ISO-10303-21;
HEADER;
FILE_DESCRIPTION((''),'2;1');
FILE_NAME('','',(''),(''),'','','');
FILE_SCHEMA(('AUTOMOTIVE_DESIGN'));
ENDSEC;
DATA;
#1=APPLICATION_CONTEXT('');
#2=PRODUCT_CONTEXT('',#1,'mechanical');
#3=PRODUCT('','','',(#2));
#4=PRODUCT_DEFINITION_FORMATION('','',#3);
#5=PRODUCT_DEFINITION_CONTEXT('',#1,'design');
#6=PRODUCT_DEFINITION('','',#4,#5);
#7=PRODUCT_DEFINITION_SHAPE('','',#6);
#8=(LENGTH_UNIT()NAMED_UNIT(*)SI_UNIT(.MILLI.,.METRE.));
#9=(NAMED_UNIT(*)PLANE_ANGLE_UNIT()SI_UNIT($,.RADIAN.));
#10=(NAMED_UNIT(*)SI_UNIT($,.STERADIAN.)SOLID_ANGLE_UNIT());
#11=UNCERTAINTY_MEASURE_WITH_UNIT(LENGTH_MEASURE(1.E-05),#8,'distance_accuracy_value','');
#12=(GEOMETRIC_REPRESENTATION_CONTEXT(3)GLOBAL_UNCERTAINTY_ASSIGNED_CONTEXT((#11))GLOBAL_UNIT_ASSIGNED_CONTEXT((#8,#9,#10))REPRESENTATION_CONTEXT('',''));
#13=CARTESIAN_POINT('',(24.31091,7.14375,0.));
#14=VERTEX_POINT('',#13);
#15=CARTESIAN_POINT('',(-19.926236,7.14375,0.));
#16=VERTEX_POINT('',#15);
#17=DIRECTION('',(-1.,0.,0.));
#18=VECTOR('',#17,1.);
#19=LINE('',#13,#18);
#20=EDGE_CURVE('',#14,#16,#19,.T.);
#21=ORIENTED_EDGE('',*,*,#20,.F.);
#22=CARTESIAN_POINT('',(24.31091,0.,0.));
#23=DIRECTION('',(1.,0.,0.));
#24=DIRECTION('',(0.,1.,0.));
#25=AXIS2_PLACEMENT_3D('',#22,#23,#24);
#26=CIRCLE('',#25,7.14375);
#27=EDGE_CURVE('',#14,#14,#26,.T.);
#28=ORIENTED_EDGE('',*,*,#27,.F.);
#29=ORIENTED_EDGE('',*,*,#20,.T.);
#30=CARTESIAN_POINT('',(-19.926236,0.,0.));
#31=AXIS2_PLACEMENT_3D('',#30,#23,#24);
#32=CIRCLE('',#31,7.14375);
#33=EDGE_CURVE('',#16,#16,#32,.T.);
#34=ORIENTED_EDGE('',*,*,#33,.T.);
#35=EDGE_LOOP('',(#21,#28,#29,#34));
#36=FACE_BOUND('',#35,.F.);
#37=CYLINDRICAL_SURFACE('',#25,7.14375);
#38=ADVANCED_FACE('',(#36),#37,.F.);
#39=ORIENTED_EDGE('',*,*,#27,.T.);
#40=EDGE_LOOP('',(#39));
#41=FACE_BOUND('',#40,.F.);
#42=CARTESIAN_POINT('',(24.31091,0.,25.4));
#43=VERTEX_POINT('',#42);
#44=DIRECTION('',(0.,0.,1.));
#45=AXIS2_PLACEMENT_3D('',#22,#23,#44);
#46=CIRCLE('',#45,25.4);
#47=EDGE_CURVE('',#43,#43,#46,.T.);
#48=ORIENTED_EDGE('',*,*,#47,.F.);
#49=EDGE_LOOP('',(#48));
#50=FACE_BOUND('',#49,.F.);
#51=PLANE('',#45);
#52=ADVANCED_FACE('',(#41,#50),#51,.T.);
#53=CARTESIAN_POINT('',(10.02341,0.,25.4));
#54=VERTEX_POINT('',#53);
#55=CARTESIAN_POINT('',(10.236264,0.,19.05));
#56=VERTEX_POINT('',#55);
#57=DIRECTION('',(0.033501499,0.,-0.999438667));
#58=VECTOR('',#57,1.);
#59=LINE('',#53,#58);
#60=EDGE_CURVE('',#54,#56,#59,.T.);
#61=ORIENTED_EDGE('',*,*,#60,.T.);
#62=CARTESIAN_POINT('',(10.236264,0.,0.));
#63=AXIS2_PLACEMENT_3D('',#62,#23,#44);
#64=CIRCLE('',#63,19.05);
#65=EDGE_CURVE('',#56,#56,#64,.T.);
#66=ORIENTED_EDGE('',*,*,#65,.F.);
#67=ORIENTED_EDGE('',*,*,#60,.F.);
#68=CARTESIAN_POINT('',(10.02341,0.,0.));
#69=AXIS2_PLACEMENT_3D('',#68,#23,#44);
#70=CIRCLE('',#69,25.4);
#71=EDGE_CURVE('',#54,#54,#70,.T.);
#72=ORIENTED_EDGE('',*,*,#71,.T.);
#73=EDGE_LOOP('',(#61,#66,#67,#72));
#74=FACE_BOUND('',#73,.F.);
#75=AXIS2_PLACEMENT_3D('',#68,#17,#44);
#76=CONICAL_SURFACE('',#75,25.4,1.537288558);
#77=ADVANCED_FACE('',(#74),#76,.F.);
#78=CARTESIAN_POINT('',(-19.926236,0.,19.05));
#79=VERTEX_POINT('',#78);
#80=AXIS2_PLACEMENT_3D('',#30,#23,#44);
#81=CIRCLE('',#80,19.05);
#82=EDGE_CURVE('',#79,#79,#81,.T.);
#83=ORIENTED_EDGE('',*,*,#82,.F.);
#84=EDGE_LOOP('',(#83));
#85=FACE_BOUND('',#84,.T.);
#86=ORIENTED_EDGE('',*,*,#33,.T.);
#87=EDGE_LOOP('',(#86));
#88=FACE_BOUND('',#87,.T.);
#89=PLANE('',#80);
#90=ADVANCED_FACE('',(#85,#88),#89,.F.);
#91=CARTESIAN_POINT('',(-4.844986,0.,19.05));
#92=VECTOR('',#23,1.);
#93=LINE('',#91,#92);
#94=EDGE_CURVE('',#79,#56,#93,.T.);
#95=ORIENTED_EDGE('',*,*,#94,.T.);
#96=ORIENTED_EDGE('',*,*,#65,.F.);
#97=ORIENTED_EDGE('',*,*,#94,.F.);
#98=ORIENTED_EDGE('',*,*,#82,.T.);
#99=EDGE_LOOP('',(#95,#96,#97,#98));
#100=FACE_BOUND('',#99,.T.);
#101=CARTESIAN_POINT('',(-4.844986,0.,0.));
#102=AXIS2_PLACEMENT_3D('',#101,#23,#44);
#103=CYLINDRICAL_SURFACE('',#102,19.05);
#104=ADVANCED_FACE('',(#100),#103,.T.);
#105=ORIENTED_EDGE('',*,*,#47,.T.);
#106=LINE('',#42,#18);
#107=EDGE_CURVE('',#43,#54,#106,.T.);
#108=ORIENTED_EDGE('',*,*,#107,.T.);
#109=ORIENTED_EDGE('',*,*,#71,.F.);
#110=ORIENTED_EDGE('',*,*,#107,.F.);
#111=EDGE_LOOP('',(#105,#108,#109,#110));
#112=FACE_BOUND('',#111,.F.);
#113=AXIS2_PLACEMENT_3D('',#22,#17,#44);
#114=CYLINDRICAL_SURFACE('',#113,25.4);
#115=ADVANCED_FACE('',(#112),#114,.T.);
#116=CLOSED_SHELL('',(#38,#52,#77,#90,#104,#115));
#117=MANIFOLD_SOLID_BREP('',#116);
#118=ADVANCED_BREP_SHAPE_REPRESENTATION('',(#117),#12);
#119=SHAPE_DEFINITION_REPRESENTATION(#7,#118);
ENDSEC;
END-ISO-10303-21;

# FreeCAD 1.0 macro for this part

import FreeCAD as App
import Part
import Sketcher

V = App.Vector
Q = App.Units.Quantity


def add_polygon(sketch, points):
    """Adds a closed chain of lines whose ends are joined by coincident constraints."""
    first, n = sketch.GeometryCount, len(points)
    for a, b in zip(points, points[1:] + points[:1]):
        sketch.addGeometry(Part.LineSegment(App.Vector(*a, 0), App.Vector(*b, 0)), False)
    for i in range(n):
        sketch.addConstraint(Sketcher.Constraint("Coincident", first + i, 2, first + (i + 1) % n, 1))

doc = App.newDocument("Part")
body = doc.addObject("PartDesign::Body", "Body")

# Sketch on XZ plane
sketch1 = body.newObject("Sketcher::SketchObject", "Sketch")
sketch1.AttachmentSupport = (doc.getObject("XZ_Plane"), [""])
sketch1.MapMode = "FlatFace"
add_polygon(sketch1, [(-20, 19), (-20, 0), (24, 0), (24, 25), (10, 25), (10, 19)])  # lines 0-5
sketch1.addConstraint(Sketcher.Constraint("Vertical", 0))
sketch1.addConstraint(Sketcher.Constraint("Horizontal", 1))
sketch1.addConstraint(Sketcher.Constraint("Vertical", 2))
sketch1.addConstraint(Sketcher.Constraint("Horizontal", 3))
sketch1.addConstraint(Sketcher.Constraint("Horizontal", 5))
sketch1.addConstraint(Sketcher.Constraint("PointOnObject", 0, 2, -1))
sketch1.addConstraint(Sketcher.Constraint("DistanceY", 2, 1, 2, 2, Q("1 in")))
sketch1.addConstraint(Sketcher.Constraint("DistanceY", 0, 2, 0, 1, Q("0.75 in")))
sketch1.addConstraint(Sketcher.Constraint("DistanceX", 3, 2, 3, 1, Q("0.5625 in")))
sketch1.addConstraint(Sketcher.Constraint("DistanceX", 5, 2, 5, 1, Q("1.1875 in")))
sketch1.addConstraint(Sketcher.Constraint("DistanceX", 1, 1, 1, 2, 44.237146))
sketch1.addConstraint(Sketcher.Constraint("DistanceX", -1, 1, 1, 2, 24.31091))
revolution = body.newObject("PartDesign::Revolution", "Revolution")
revolution.Profile = sketch1
revolution.ReferenceAxis = (sketch1, ["H_Axis"])
revolution.Angle = 360

# Sketch on YZ plane
sketch2 = body.newObject("Sketcher::SketchObject", "Sketch001")
sketch2.AttachmentSupport = (doc.getObject("YZ_Plane"), [""])
sketch2.MapMode = "FlatFace"
sketch2.AttachmentOffset = App.Placement(V(0, 0, 24.31091), App.Rotation())
sketch2.addGeometry(Part.Circle(V(0, 0, 0), V(0, 0, 1), 7), False)
sketch2.addConstraint(Sketcher.Constraint("Coincident", 0, 3, -1, 1))
sketch2.addConstraint(Sketcher.Constraint("Diameter", 0, Q("0.5625 in")))
pocket1 = body.newObject("PartDesign::Pocket", "Pocket")
pocket1.Profile = sketch2
pocket1.Type = "ThroughAll"

doc.recompute()
